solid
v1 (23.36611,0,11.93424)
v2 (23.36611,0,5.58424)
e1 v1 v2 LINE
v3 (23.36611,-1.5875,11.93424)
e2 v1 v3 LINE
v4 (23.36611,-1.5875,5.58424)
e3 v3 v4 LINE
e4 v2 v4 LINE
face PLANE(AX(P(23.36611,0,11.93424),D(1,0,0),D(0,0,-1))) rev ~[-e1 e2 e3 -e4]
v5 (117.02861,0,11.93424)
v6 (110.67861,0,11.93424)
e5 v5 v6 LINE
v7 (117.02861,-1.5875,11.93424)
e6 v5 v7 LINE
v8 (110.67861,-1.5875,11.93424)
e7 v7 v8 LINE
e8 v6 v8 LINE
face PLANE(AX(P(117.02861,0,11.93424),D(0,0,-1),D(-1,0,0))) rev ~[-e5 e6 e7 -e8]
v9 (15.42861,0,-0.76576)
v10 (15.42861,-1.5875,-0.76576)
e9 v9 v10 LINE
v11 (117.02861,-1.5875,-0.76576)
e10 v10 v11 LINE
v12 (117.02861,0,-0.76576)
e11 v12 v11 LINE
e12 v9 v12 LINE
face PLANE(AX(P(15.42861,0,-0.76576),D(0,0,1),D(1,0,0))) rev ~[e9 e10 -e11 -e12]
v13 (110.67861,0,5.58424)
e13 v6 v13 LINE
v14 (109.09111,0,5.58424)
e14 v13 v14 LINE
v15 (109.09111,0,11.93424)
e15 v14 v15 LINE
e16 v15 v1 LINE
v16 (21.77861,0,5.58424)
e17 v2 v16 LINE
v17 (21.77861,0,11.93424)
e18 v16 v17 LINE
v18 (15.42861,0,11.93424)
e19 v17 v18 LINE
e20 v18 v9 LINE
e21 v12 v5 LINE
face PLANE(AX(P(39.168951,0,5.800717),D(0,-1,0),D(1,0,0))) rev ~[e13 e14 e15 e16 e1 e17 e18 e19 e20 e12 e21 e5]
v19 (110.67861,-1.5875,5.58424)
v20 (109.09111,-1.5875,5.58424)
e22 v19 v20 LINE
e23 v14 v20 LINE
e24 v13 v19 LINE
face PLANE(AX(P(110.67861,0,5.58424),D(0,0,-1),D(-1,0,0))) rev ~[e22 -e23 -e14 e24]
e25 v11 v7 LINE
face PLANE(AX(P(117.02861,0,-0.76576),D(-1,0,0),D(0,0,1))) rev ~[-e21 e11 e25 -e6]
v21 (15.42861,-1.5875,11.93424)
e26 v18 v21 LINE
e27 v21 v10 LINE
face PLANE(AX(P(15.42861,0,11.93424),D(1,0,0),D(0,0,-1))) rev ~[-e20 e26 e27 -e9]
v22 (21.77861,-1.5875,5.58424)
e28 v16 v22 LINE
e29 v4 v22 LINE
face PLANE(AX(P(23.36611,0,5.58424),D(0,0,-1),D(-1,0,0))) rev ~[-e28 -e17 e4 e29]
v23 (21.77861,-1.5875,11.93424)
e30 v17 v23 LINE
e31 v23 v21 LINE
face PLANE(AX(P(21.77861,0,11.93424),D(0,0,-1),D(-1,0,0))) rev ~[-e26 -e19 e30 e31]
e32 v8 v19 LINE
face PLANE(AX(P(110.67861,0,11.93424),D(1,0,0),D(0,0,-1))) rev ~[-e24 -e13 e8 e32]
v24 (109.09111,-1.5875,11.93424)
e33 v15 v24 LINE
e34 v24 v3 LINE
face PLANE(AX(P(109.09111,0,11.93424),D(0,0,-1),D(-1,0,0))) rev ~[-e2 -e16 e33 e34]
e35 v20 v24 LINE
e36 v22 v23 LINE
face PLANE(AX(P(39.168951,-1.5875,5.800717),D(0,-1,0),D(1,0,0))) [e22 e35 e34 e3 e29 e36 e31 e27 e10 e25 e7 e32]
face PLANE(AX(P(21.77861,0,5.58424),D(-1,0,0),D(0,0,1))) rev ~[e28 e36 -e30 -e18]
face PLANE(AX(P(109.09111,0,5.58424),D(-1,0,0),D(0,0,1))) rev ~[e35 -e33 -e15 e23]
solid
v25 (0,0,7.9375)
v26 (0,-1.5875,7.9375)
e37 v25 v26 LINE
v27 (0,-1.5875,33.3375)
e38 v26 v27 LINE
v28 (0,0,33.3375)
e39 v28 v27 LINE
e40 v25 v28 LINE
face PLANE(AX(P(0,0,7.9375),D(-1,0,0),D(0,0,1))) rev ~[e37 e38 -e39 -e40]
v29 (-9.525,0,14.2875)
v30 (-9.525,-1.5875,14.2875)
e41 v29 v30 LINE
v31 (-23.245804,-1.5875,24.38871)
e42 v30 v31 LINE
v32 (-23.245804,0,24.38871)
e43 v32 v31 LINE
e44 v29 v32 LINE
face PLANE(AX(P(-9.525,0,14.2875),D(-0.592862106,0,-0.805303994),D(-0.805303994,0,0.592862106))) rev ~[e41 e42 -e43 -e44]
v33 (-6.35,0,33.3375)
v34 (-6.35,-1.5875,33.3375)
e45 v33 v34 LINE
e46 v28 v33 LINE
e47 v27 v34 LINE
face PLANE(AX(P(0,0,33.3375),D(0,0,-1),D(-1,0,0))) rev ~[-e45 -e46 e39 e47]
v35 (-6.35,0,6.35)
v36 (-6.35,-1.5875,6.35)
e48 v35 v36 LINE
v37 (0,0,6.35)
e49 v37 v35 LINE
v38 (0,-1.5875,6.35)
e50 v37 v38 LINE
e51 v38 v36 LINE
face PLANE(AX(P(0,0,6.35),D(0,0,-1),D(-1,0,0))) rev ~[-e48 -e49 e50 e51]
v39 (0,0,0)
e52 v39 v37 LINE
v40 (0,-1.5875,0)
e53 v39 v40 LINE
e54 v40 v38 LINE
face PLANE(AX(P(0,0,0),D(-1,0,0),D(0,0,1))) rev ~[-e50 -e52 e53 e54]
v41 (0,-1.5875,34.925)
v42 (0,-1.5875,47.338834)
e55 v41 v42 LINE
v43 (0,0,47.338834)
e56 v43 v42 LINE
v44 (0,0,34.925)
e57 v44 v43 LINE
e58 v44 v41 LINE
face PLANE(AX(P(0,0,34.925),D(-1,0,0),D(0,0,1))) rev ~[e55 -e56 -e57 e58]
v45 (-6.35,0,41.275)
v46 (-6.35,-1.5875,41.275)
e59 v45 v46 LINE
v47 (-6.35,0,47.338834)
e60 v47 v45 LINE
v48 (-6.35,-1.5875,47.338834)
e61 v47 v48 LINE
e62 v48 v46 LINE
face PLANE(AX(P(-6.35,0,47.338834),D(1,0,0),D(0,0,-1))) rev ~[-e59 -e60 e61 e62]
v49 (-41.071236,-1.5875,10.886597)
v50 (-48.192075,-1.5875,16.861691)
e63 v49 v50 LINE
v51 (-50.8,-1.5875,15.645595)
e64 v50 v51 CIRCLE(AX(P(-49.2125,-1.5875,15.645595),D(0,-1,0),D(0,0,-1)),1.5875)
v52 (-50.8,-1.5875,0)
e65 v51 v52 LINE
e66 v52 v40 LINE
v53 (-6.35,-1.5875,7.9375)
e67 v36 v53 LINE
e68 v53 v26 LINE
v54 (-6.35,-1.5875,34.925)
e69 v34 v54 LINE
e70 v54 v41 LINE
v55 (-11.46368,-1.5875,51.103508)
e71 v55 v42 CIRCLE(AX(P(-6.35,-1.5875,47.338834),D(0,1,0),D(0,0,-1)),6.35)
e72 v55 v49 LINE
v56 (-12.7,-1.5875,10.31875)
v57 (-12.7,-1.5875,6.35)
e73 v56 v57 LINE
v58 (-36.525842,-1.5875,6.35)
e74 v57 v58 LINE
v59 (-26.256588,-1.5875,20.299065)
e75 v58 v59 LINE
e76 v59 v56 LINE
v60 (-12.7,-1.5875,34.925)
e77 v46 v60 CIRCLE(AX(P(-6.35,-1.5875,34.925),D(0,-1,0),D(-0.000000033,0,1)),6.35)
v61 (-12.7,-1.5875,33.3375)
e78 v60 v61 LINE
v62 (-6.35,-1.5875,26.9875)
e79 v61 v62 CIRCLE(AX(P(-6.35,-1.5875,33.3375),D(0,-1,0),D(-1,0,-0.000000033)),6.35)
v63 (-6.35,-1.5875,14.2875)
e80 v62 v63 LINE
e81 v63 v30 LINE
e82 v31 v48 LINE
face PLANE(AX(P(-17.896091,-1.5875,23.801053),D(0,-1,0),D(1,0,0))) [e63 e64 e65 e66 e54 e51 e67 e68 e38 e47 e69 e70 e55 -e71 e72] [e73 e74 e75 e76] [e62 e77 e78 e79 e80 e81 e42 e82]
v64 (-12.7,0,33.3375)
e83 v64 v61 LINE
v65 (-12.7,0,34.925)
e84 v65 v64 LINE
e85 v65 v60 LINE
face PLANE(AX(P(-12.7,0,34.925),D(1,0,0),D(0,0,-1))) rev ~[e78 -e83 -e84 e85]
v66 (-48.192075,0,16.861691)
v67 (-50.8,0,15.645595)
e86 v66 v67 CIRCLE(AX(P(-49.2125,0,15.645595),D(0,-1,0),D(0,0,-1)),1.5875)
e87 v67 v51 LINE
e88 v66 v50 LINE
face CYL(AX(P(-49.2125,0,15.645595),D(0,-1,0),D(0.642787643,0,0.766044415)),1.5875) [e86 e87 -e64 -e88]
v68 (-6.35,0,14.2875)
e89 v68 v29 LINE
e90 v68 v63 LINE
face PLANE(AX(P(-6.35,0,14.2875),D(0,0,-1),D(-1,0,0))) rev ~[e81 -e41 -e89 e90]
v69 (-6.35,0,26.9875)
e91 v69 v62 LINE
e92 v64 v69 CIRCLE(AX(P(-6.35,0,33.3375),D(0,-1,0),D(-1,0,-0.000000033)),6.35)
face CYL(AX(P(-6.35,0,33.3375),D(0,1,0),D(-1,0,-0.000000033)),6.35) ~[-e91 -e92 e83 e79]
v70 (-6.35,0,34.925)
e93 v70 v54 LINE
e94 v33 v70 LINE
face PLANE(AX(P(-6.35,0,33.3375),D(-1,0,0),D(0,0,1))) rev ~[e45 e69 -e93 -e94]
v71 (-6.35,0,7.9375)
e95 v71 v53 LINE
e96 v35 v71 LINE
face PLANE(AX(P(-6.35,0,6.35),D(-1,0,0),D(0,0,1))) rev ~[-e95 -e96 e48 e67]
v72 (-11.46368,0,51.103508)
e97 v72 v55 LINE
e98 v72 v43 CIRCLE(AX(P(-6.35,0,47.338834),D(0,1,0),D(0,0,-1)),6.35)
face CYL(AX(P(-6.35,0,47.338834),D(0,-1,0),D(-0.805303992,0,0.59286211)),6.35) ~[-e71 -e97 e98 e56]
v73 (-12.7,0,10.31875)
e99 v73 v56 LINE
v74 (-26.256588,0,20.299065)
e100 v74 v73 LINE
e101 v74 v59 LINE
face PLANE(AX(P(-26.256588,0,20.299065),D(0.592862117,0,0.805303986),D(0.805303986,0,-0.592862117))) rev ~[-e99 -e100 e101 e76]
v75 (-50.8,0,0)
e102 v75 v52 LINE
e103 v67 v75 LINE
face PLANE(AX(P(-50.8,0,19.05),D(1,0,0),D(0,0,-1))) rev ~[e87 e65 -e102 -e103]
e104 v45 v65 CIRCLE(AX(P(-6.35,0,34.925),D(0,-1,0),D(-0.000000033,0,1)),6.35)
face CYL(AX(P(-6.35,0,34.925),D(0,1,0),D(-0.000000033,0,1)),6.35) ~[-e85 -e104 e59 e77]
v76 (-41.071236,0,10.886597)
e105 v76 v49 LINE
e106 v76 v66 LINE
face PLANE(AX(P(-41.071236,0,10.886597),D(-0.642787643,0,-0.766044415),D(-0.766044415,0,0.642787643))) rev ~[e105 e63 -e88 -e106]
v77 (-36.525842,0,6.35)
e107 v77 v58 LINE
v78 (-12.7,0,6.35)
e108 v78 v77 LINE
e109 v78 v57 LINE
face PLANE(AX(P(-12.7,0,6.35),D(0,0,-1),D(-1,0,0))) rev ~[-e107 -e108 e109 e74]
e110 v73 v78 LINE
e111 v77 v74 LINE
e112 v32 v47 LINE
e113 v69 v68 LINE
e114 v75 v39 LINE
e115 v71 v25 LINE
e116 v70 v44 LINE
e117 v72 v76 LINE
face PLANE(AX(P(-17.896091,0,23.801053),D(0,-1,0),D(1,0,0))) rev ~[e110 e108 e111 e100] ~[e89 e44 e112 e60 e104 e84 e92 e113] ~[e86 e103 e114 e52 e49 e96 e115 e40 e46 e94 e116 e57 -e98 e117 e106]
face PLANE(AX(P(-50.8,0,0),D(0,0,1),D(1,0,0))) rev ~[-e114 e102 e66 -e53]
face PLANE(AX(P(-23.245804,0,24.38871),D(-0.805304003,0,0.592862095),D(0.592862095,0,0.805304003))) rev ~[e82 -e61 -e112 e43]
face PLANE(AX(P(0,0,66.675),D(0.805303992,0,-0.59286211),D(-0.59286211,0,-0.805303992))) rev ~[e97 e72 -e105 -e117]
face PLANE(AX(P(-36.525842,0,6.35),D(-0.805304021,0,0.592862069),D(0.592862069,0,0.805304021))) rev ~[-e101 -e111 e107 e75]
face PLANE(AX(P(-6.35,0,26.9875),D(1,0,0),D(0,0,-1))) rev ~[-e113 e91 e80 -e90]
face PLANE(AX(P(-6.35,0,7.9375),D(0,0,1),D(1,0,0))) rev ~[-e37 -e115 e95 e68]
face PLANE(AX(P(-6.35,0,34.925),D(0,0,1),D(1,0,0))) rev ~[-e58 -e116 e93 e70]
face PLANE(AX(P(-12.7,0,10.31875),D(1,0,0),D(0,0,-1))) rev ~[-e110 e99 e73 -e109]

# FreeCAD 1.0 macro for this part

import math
import FreeCAD as App
import Part
import Sketcher

V = App.Vector
Q = App.Units.Quantity


def edges_at(feature, points):
    """Names of the edges that pass closest to the given points."""
    edges = feature.Shape.Edges
    near = lambda p: min(range(len(edges)), key=lambda i: edges[i].distToShape(Part.Vertex(*p))[0])
    return sorted({f"Edge{near(p) + 1}" for p in points})

doc = App.newDocument("Part")
body = doc.addObject("PartDesign::Body", "Body")

# Sketch on XZ plane
sketch1 = body.newObject("Sketcher::SketchObject", "Sketch")
sketch1.AttachmentSupport = (doc.getObject("XZ_Plane"), [""])
sketch1.MapMode = "FlatFace"
sketch1.addGeometry([
    Part.LineSegment(V(-50.8, 0, 0), V(0, 0, 0)),  # 0
    Part.LineSegment(V(0, 0, 0), V(0, 6.35, 0)),  # 1
    Part.LineSegment(V(0, 6.35, 0), V(-6.35, 6.35, 0)),  # 2
    Part.LineSegment(V(-6.35, 6.35, 0), V(-6.35, 7.9375, 0)),  # 3
    Part.LineSegment(V(-6.35, 7.9375, 0), V(0, 7.9375, 0)),  # 4
    Part.LineSegment(V(0, 7.9375, 0), V(0, 33.3375, 0)),  # 5
    Part.LineSegment(V(0, 33.3375, 0), V(-6.35, 33.3375, 0)),  # 6
    Part.LineSegment(V(-6.35, 33.3375, 0), V(-6.35, 34.925, 0)),  # 7
    Part.LineSegment(V(-6.35, 34.925, 0), V(0, 34.925, 0)),  # 8
    Part.LineSegment(V(0, 34.925, 0), V(0, 66.675, 0)),  # 9
    Part.LineSegment(V(0, 66.675, 0), V(-41.071236, 10.886597, 0)),  # 10
    Part.LineSegment(V(-41.071236, 10.886597, 0), V(-50.8, 19.05, 0)),  # 11
    Part.LineSegment(V(-50.8, 19.05, 0), V(-50.8, 0, 0)),  # 12
    Part.ArcOfCircle(Part.Circle(V(-6.35, 33.3375, 0), V(0, 0, 1), 6.35), math.radians(-179.999998), math.radians(-90.000002)),  # 13
    Part.LineSegment(V(-6.35, 26.9875, 0), V(-6.35, 14.2875, 0)),  # 14
    Part.LineSegment(V(-6.35, 14.2875, 0), V(-9.525, 14.2875, 0)),  # 15
    Part.LineSegment(V(-9.525, 14.2875, 0), V(-23.245804, 24.38871, 0)),  # 16
    Part.LineSegment(V(-23.245804, 24.38871, 0), V(-6.35, 47.338834, 0)),  # 17
    Part.LineSegment(V(-6.35, 47.338834, 0), V(-6.35, 41.275, 0)),  # 18
    Part.ArcOfCircle(Part.Circle(V(-6.35, 34.925, 0), V(0, 0, 1), 6.35), math.radians(90.000002), math.radians(179.999998)),  # 19
    Part.LineSegment(V(-12.7, 34.925, 0), V(-12.7, 33.3375, 0)),  # 20
    Part.LineSegment(V(-36.525842, 6.35, 0), V(-26.256588, 20.299065, 0)),  # 21
    Part.LineSegment(V(-26.256588, 20.299065, 0), V(-12.7, 10.31875, 0)),  # 22
    Part.LineSegment(V(-12.7, 10.31875, 0), V(-12.7, 6.35, 0)),  # 23
    Part.LineSegment(V(-12.7, 6.35, 0), V(-36.525842, 6.35, 0)),  # 24
], False)
sketch1.addConstraint([
    Sketcher.Constraint("Coincident", 0, 2, 1, 1),
    Sketcher.Constraint("Coincident", 1, 2, 2, 1),
    Sketcher.Constraint("Coincident", 2, 2, 3, 1),
    Sketcher.Constraint("Coincident", 3, 2, 4, 1),
    Sketcher.Constraint("Coincident", 4, 2, 5, 1),
    Sketcher.Constraint("Coincident", 5, 2, 6, 1),
    Sketcher.Constraint("Coincident", 6, 2, 7, 1),
    Sketcher.Constraint("Coincident", 7, 2, 8, 1),
    Sketcher.Constraint("Coincident", 8, 2, 9, 1),
    Sketcher.Constraint("Coincident", 9, 2, 10, 1),
    Sketcher.Constraint("Coincident", 10, 2, 11, 1),
    Sketcher.Constraint("Coincident", 11, 2, 12, 1),
    Sketcher.Constraint("Coincident", 12, 2, 0, 1),
    Sketcher.Constraint("Coincident", 13, 2, 14, 1),
    Sketcher.Constraint("Coincident", 14, 2, 15, 1),
    Sketcher.Constraint("Coincident", 15, 2, 16, 1),
    Sketcher.Constraint("Coincident", 16, 2, 17, 1),
    Sketcher.Constraint("Coincident", 17, 2, 18, 1),
    Sketcher.Constraint("Coincident", 18, 2, 19, 1),
    Sketcher.Constraint("Tangent", 19, 2, 20, 1),
    Sketcher.Constraint("Tangent", 20, 2, 13, 1),
    Sketcher.Constraint("Coincident", 21, 2, 22, 1),
    Sketcher.Constraint("Coincident", 22, 2, 23, 1),
    Sketcher.Constraint("Coincident", 23, 2, 24, 1),
    Sketcher.Constraint("Coincident", 24, 2, 21, 1),
    Sketcher.Constraint("Horizontal", 0),
    Sketcher.Constraint("Vertical", 1),
    Sketcher.Constraint("Horizontal", 2),
    Sketcher.Constraint("Vertical", 3),
    Sketcher.Constraint("Horizontal", 4),
    Sketcher.Constraint("Vertical", 5),
    Sketcher.Constraint("Horizontal", 6),
    Sketcher.Constraint("Vertical", 7),
    Sketcher.Constraint("Horizontal", 8),
    Sketcher.Constraint("Vertical", 9),
    Sketcher.Constraint("Vertical", 12),
    Sketcher.Constraint("Vertical", 14),
    Sketcher.Constraint("Horizontal", 15),
    Sketcher.Constraint("Vertical", 18),
    Sketcher.Constraint("Vertical", 20),
    Sketcher.Constraint("Vertical", 23),
    Sketcher.Constraint("Horizontal", 24),
    Sketcher.Constraint("Coincident", 0, 2, -1, 1),
    Sketcher.Constraint("Coincident", 6, 2, 13, 3),
    Sketcher.Constraint("Coincident", 7, 2, 19, 3),
    Sketcher.Constraint("PointOnObject", 4, 2, -2),
    Sketcher.Constraint("PointOnObject", 8, 2, -2),
    Sketcher.Constraint("Perpendicular", 10, 16),
    Sketcher.Constraint("Perpendicular", 16, 17),
    Sketcher.Constraint("Parallel", 17, 21),
    Sketcher.Constraint("Perpendicular", 21, 22),
    Sketcher.Constraint("Horizontal", 2, 2, 23, 2),
    Sketcher.Constraint("Vertical", 19, 3, 2, 2),
    Sketcher.Constraint("Vertical", 7, 2, 13, 2),
    Sketcher.Constraint("Vertical", 14, 2, 17, 2),
    Sketcher.Constraint("Vertical", 20, 2, 22, 2),
    Sketcher.Constraint("Equal", 8, 1),
    Sketcher.Constraint("Equal", 3, 7),
    Sketcher.Constraint("DistanceX", 0, 1, 0, 2, Q("2 in")),
    Sketcher.Constraint("DistanceY", 5, 1, 5, 2, Q("1 in")),
    Sketcher.Constraint("Radius", 13, Q("0.25 in")),
    Sketcher.Constraint("DistanceY", 14, 2, 14, 1, Q("0.5 in")),
    Sketcher.Constraint("Angle", 11, Q("139.999998 deg")),
    Sketcher.Constraint("Distance", 11, Q("0.5 in")),
    Sketcher.Constraint("DistanceX", 2, 2, 2, 1, Q("0.25 in")),
    Sketcher.Constraint("DistanceY", 9, 1, 9, 2, Q("1.25 in")),
    Sketcher.Constraint("DistanceY", 12, 2, 12, 1, Q("0.75 in")),
    Sketcher.Constraint("DistanceX", 15, 2, 15, 1, Q("0.125 in")),
    Sketcher.Constraint("DistanceY", 3, 1, 3, 2, Q("0.0625 in")),
    Sketcher.Constraint("DistanceY", 23, 2, 23, 1, Q("0.15625 in")),
    Sketcher.Constraint("DistanceX", 24, 2, 24, 1, 23.825842),
    Sketcher.Constraint("Distance", 17, 28.498708),
])
pad1 = body.newObject("PartDesign::Pad", "Pad")
pad1.Profile = sketch1
pad1.Length = Q("0.0625 in")
doc.recompute()

fillet = body.newObject("PartDesign::Fillet", "Fillet")
fillet.Base = (pad1, edges_at(pad1, [(-50.8, -0.794, 19.05)]))
fillet.Radius = Q("0.0625 in")
doc.recompute()

fillet2 = body.newObject("PartDesign::Fillet", "Fillet001")
fillet2.Base = (fillet, edges_at(fillet, [(0, -0.794, 66.675)]))
fillet2.Radius = Q("0.25 in")
body2 = doc.addObject("PartDesign::Body", "Body001")

# Sketch on XZ plane
sketch2 = body2.newObject("Sketcher::SketchObject", "Sketch001")
sketch2.AttachmentSupport = (doc.getObject("XZ_Plane001"), [""])
sketch2.MapMode = "FlatFace"
sketch2.addGeometry([
    Part.LineSegment(V(21.77861, 11.93424, 0), V(15.42861, 11.93424, 0)),  # 0
    Part.LineSegment(V(15.42861, 11.93424, 0), V(15.42861, -0.76576, 0)),  # 1
    Part.LineSegment(V(15.42861, -0.76576, 0), V(117.02861, -0.76576, 0)),  # 2
    Part.LineSegment(V(117.02861, -0.76576, 0), V(117.02861, 11.93424, 0)),  # 3
    Part.LineSegment(V(117.02861, 11.93424, 0), V(110.67861, 11.93424, 0)),  # 4
    Part.LineSegment(V(110.67861, 11.93424, 0), V(110.67861, 5.58424, 0)),  # 5
    Part.LineSegment(V(110.67861, 5.58424, 0), V(109.09111, 5.58424, 0)),  # 6
    Part.LineSegment(V(109.09111, 5.58424, 0), V(109.09111, 11.93424, 0)),  # 7
    Part.LineSegment(V(109.09111, 11.93424, 0), V(23.36611, 11.93424, 0)),  # 8
    Part.LineSegment(V(23.36611, 11.93424, 0), V(23.36611, 5.58424, 0)),  # 9
    Part.LineSegment(V(23.36611, 5.58424, 0), V(21.77861, 5.58424, 0)),  # 10
    Part.LineSegment(V(21.77861, 5.58424, 0), V(21.77861, 11.93424, 0)),  # 11
], False)
sketch2.addConstraint([
    Sketcher.Constraint("Coincident", 0, 2, 1, 1),
    Sketcher.Constraint("Coincident", 1, 2, 2, 1),
    Sketcher.Constraint("Coincident", 2, 2, 3, 1),
    Sketcher.Constraint("Coincident", 3, 2, 4, 1),
    Sketcher.Constraint("Coincident", 4, 2, 5, 1),
    Sketcher.Constraint("Coincident", 5, 2, 6, 1),
    Sketcher.Constraint("Coincident", 6, 2, 7, 1),
    Sketcher.Constraint("Coincident", 7, 2, 8, 1),
    Sketcher.Constraint("Coincident", 8, 2, 9, 1),
    Sketcher.Constraint("Coincident", 9, 2, 10, 1),
    Sketcher.Constraint("Coincident", 10, 2, 11, 1),
    Sketcher.Constraint("Coincident", 11, 2, 0, 1),
    Sketcher.Constraint("Horizontal", 0),
    Sketcher.Constraint("Vertical", 1),
    Sketcher.Constraint("Horizontal", 2),
    Sketcher.Constraint("Vertical", 3),
    Sketcher.Constraint("Horizontal", 4),
    Sketcher.Constraint("Vertical", 5),
    Sketcher.Constraint("Horizontal", 6),
    Sketcher.Constraint("Vertical", 7),
    Sketcher.Constraint("Horizontal", 8),
    Sketcher.Constraint("Vertical", 9),
    Sketcher.Constraint("Horizontal", 10),
    Sketcher.Constraint("Vertical", 11),
    Sketcher.Constraint("Horizontal", 0, 2, 3, 2),
    Sketcher.Constraint("Horizontal", 4, 2, 7, 2),
    Sketcher.Constraint("Horizontal", 6, 2, 9, 2),
    Sketcher.Constraint("Equal", 0, 4),
    Sketcher.Constraint("Equal", 6, 10),
    Sketcher.Constraint("Equal", 4, 5),
    Sketcher.Constraint("DistanceX", 2, 1, 2, 2, Q("4 in")),
    Sketcher.Constraint("DistanceY", 1, 2, 1, 1, Q("0.5 in")),
    Sketcher.Constraint("DistanceX", 0, 2, 0, 1, Q("0.25 in")),
    Sketcher.Constraint("DistanceX", 6, 2, 6, 1, Q("0.0625 in")),
    Sketcher.Constraint("DistanceX", -1, 1, 0, 2, 15.42861),
    Sketcher.Constraint("DistanceY", -1, 1, 0, 2, 11.93424),
])
pad2 = body2.newObject("PartDesign::Pad", "Pad001")
pad2.Profile = sketch2
pad2.Length = Q("0.0625 in")

doc.recompute()
